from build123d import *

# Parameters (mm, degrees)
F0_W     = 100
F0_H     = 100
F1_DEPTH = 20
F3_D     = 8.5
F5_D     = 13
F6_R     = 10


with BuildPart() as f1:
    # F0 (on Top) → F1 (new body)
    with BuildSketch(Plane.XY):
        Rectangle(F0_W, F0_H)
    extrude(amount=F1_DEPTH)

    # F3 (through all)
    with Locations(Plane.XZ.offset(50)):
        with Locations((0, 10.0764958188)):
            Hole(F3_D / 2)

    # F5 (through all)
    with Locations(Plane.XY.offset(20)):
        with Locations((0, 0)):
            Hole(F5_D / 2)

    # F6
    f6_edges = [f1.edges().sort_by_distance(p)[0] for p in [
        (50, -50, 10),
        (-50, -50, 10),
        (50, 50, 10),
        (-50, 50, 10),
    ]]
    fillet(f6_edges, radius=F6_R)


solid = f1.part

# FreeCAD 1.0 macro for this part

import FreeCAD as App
import Part
import Sketcher


def edges_at(feature, points):
    """Names of the edges that pass closest to the given points."""
    edges = feature.Shape.Edges
    near = lambda p: min(range(len(edges)), key=lambda i: edges[i].distToShape(Part.Vertex(*p))[0])
    return sorted({f"Edge{near(p) + 1}" for p in points})


def add_polygon(sketch, points):
    """Adds a closed chain of lines whose ends are joined by coincident constraints."""
    first, n = sketch.GeometryCount, len(points)
    for a, b in zip(points, points[1:] + points[:1]):
        sketch.addGeometry(Part.LineSegment(App.Vector(*a, 0), App.Vector(*b, 0)), False)
    for i in range(n):
        sketch.addConstraint(Sketcher.Constraint("Coincident", first + i, 2, first + (i + 1) % n, 1))

doc = App.newDocument("Part")
body = doc.addObject("PartDesign::Body", "Body")

sketch1 = body.newObject("Sketcher::SketchObject", "Sketch")
sketch1.AttachmentSupport = (doc.getObject("XY_Plane"), [""])
sketch1.MapMode = "FlatFace"
add_polygon(sketch1, [(-50, 50), (-50, -50), (50, -50), (50, 50)])
sketch1.addConstraint([
    Sketcher.Constraint("Vertical", 0),
    Sketcher.Constraint("Horizontal", 1),
    Sketcher.Constraint("Vertical", 2),
    Sketcher.Constraint("Horizontal", 3),
    Sketcher.Constraint("Symmetric", 0, 2, 2, 2, -1, 1),
    Sketcher.Constraint("Equal", 3, 0),
    Sketcher.Constraint("DistanceX", 1, 1, 1, 2, 100.0),
])
pad1 = body.newObject("PartDesign::Pad", "Pad")
pad1.Profile = sketch1
pad1.Length = 20

sketch2 = body.newObject("Sketcher::SketchObject", "Sketch001")
sketch2.AttachmentSupport = (doc.getObject("XZ_Plane"), [""])
sketch2.MapMode = "FlatFace"
sketch2.AttachmentOffset = App.Placement(App.Vector(0, 0, 50), App.Rotation())
sketch2.addGeometry(Part.Circle(App.Vector(0, 10.1, 0), App.Vector(0, 0, 1), 4.2), False)
sketch2.addConstraint([
    Sketcher.Constraint("PointOnObject", 0, 3, -2),
    Sketcher.Constraint("Diameter", 0, 8.5),
    Sketcher.Constraint("DistanceY", -1, 1, 0, 3, 10.076496),
])
doc.recompute()
hole = body.newObject("PartDesign::Hole", "Hole")
hole.Profile = sketch2
hole.ThreadType = "None"
hole.Diameter = 8.5
hole.DepthType = "ThroughAll"

sketch3 = body.newObject("Sketcher::SketchObject", "Sketch002")
sketch3.AttachmentSupport = (doc.getObject("XY_Plane"), [""])
sketch3.MapMode = "FlatFace"
sketch3.AttachmentOffset = App.Placement(App.Vector(0, 0, 20), App.Rotation())
sketch3.addGeometry(Part.Circle(App.Vector(0, 0, 0), App.Vector(0, 0, 1), 6), False)
sketch3.addConstraint([
    Sketcher.Constraint("Coincident", 0, 3, -1, 1),
    Sketcher.Constraint("Diameter", 0, 13.0),
])
doc.recompute()
hole2 = body.newObject("PartDesign::Hole", "Hole001")
hole2.Profile = sketch3
hole2.ThreadType = "None"
hole2.Diameter = 13
hole2.DepthType = "ThroughAll"
doc.recompute()

fillet = body.newObject("PartDesign::Fillet", "Fillet")
fillet.Base = (hole2, edges_at(hole2, [
    (50, -50, 10),
    (-50, -50, 10),
    (50, 50, 10),
    (-50, 50, 10),
]))
fillet.Radius = 10

doc.recompute()
